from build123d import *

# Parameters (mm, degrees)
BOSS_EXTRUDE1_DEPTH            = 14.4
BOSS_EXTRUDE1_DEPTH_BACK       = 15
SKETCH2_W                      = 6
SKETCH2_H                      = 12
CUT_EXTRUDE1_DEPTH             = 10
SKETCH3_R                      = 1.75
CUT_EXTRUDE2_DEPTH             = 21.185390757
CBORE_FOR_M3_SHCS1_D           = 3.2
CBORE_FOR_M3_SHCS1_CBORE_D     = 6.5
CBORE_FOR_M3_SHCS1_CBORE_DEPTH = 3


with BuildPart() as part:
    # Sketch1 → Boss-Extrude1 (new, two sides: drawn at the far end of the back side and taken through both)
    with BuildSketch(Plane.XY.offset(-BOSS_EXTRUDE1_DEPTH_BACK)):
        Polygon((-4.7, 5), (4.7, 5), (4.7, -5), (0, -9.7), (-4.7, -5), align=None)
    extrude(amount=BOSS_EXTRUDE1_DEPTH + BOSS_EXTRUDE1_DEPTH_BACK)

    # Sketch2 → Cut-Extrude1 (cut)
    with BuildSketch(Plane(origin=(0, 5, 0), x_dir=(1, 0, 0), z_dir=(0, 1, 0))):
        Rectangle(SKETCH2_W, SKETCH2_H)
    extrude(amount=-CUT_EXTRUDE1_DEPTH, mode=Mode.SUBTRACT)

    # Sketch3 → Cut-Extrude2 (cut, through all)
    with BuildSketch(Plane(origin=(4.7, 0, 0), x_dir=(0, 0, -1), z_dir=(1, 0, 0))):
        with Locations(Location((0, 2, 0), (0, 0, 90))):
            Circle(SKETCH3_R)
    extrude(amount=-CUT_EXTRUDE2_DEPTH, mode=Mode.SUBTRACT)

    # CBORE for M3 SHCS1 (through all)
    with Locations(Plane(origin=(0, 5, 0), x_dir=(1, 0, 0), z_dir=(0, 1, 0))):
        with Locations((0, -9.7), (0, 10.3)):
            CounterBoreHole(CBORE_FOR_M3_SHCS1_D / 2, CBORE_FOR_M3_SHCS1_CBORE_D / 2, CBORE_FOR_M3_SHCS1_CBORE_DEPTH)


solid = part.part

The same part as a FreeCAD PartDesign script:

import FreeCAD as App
import Part
import Sketcher
from FreeCAD import Vector
Q = App.Units.Quantity

doc = App.newDocument("Part")
body = doc.addObject("PartDesign::Body", "Body")

# Sketch on XY plane
sketch1 = body.newObject("Sketcher::SketchObject", "Sketch")
sketch1.AttachmentSupport = (doc.getObject("XY_Plane"), [""])
sketch1.MapMode = "FlatFace"
sketch1.addGeometry([
    Part.LineSegment(Vector(5, 5, 0), Vector(-5, 5, 0)),  # 0
    Part.LineSegment(Vector(-5, 5, 0), Vector(-5, -5, 0)),  # 1
    Part.LineSegment(Vector(-5, -5, 0), Vector(0, -10, 0)),  # 2
    Part.LineSegment(Vector(0, -10, 0), Vector(5, -5, 0)),  # 3
    Part.LineSegment(Vector(5, -5, 0), Vector(5, 5, 0)),  # 4
], False)
sketch1.addConstraint([
    Sketcher.Constraint("Coincident", 0, 2, 1, 1),
    Sketcher.Constraint("Coincident", 1, 2, 2, 1),
    Sketcher.Constraint("Coincident", 2, 2, 3, 1),
    Sketcher.Constraint("Coincident", 3, 2, 4, 1),
    Sketcher.Constraint("Coincident", 4, 2, 0, 1),
    Sketcher.Constraint("Horizontal", 0),
    Sketcher.Constraint("Vertical", 1),
    Sketcher.Constraint("Vertical", 4),
    Sketcher.Constraint("Symmetric", 0, 2, 3, 2, -1, 1),
    Sketcher.Constraint("PointOnObject", 2, 2, -2),
    Sketcher.Constraint("Perpendicular", 2, 3),
    Sketcher.Constraint("Horizontal", 1, 2, 3, 2),
    Sketcher.Constraint("DistanceY", 1, 2, 1, 1, Q("10 mm")),
    Sketcher.Constraint("DistanceX", 0, 2, 0, 1, Q("9.4 mm")),
])
pad1 = body.newObject("PartDesign::Pad", "Pad")
pad1.Profile = sketch1
pad1.Type = "TwoLengths"
pad1.Length = 14.4
pad1.Length2 = 15

# Sketch on XZ plane
sketch2 = body.newObject("Sketcher::SketchObject", "Sketch001")
sketch2.AttachmentSupport = (doc.getObject("XZ_Plane"), [""])
sketch2.MapMode = "FlatFace"
sketch2.AttachmentOffset = App.Placement(Vector(0, 0, -5), App.Rotation())
sketch2.addGeometry([
    Part.LineSegment(Vector(-3, -6, 0), Vector(-3, 6, 0)),
    Part.LineSegment(Vector(-3, 6, 0), Vector(3, 6, 0)),
    Part.LineSegment(Vector(3, 6, 0), Vector(3, -6, 0)),
    Part.LineSegment(Vector(3, -6, 0), Vector(-3, -6, 0)),
], False)
sketch2.addConstraint([
    Sketcher.Constraint("Coincident", 0, 2, 1, 1),
    Sketcher.Constraint("Coincident", 1, 2, 2, 1),
    Sketcher.Constraint("Coincident", 2, 2, 3, 1),
    Sketcher.Constraint("Coincident", 3, 2, 0, 1),
    Sketcher.Constraint("Vertical", 0),
    Sketcher.Constraint("Horizontal", 1),
    Sketcher.Constraint("Vertical", 2),
    Sketcher.Constraint("Horizontal", 3),
    Sketcher.Constraint("Symmetric", 0, 2, 2, 2, -1, 1),
    Sketcher.Constraint("DistanceX", 1, 1, 1, 2, Q("6 mm")),
    Sketcher.Constraint("DistanceY", 0, 1, 0, 2, Q("12 mm")),
])
pocket1 = body.newObject("PartDesign::Pocket", "Pocket")
pocket1.Profile = sketch2
pocket1.Length = 10
pocket1.Reversed = True

# Sketch on YZ plane
sketch3 = body.newObject("Sketcher::SketchObject", "Sketch002")
sketch3.AttachmentSupport = (doc.getObject("YZ_Plane"), [""])
sketch3.MapMode = "FlatFace"
sketch3.AttachmentOffset = App.Placement(Vector(0, 0, 4.7), App.Rotation())
sketch3.addGeometry(Part.Circle(Vector(2, 0, 0), Vector(0, 0, 1), 1.8), False)
sketch3.addConstraint([
    Sketcher.Constraint("PointOnObject", 0, 3, -1),
    Sketcher.Constraint("Diameter", 0, Q("3.5 mm")),
    Sketcher.Constraint("DistanceX", -1, 1, 0, 3, Q("2 mm")),
])
pocket2 = body.newObject("PartDesign::Pocket", "Pocket001")
pocket2.Profile = sketch3
pocket2.Type = "ThroughAll"

# Sketch on XZ plane
sketch4 = body.newObject("Sketcher::SketchObject", "Sketch003")
sketch4.AttachmentSupport = (doc.getObject("XZ_Plane"), [""])
sketch4.MapMode = "FlatFace"
sketch4.AttachmentOffset = App.Placement(Vector(0, 0, -5), App.Rotation())
sketch4.addGeometry([
    Part.Circle(Vector(0, 9.7, 0), Vector(0, 0, 1), 1.6),
    Part.Circle(Vector(0, -10.3, 0), Vector(0, 0, 1), 1.6),
], False)
sketch4.addConstraint([
    Sketcher.Constraint("Equal", 0, 1),
    Sketcher.Constraint("PointOnObject", 0, 3, -2),
    Sketcher.Constraint("PointOnObject", 1, 3, -2),
    Sketcher.Constraint("Diameter", 0, Q("3.2 mm")),
    Sketcher.Constraint("DistanceY", 1, 3, 0, 3, Q("20 mm")),
    Sketcher.Constraint("DistanceY", -1, 1, 0, 3, Q("9.7 mm")),
])
doc.recompute()
hole = body.newObject("PartDesign::Hole", "Hole")
hole.Profile = sketch4
hole.ThreadType = "None"
hole.Diameter = 3.2
hole.DepthType = "ThroughAll"
hole.HoleCutType = "Counterbore"
hole.HoleCutDiameter = 6.5
hole.HoleCutDepth = 3
hole.Reversed = True

doc.recompute()
